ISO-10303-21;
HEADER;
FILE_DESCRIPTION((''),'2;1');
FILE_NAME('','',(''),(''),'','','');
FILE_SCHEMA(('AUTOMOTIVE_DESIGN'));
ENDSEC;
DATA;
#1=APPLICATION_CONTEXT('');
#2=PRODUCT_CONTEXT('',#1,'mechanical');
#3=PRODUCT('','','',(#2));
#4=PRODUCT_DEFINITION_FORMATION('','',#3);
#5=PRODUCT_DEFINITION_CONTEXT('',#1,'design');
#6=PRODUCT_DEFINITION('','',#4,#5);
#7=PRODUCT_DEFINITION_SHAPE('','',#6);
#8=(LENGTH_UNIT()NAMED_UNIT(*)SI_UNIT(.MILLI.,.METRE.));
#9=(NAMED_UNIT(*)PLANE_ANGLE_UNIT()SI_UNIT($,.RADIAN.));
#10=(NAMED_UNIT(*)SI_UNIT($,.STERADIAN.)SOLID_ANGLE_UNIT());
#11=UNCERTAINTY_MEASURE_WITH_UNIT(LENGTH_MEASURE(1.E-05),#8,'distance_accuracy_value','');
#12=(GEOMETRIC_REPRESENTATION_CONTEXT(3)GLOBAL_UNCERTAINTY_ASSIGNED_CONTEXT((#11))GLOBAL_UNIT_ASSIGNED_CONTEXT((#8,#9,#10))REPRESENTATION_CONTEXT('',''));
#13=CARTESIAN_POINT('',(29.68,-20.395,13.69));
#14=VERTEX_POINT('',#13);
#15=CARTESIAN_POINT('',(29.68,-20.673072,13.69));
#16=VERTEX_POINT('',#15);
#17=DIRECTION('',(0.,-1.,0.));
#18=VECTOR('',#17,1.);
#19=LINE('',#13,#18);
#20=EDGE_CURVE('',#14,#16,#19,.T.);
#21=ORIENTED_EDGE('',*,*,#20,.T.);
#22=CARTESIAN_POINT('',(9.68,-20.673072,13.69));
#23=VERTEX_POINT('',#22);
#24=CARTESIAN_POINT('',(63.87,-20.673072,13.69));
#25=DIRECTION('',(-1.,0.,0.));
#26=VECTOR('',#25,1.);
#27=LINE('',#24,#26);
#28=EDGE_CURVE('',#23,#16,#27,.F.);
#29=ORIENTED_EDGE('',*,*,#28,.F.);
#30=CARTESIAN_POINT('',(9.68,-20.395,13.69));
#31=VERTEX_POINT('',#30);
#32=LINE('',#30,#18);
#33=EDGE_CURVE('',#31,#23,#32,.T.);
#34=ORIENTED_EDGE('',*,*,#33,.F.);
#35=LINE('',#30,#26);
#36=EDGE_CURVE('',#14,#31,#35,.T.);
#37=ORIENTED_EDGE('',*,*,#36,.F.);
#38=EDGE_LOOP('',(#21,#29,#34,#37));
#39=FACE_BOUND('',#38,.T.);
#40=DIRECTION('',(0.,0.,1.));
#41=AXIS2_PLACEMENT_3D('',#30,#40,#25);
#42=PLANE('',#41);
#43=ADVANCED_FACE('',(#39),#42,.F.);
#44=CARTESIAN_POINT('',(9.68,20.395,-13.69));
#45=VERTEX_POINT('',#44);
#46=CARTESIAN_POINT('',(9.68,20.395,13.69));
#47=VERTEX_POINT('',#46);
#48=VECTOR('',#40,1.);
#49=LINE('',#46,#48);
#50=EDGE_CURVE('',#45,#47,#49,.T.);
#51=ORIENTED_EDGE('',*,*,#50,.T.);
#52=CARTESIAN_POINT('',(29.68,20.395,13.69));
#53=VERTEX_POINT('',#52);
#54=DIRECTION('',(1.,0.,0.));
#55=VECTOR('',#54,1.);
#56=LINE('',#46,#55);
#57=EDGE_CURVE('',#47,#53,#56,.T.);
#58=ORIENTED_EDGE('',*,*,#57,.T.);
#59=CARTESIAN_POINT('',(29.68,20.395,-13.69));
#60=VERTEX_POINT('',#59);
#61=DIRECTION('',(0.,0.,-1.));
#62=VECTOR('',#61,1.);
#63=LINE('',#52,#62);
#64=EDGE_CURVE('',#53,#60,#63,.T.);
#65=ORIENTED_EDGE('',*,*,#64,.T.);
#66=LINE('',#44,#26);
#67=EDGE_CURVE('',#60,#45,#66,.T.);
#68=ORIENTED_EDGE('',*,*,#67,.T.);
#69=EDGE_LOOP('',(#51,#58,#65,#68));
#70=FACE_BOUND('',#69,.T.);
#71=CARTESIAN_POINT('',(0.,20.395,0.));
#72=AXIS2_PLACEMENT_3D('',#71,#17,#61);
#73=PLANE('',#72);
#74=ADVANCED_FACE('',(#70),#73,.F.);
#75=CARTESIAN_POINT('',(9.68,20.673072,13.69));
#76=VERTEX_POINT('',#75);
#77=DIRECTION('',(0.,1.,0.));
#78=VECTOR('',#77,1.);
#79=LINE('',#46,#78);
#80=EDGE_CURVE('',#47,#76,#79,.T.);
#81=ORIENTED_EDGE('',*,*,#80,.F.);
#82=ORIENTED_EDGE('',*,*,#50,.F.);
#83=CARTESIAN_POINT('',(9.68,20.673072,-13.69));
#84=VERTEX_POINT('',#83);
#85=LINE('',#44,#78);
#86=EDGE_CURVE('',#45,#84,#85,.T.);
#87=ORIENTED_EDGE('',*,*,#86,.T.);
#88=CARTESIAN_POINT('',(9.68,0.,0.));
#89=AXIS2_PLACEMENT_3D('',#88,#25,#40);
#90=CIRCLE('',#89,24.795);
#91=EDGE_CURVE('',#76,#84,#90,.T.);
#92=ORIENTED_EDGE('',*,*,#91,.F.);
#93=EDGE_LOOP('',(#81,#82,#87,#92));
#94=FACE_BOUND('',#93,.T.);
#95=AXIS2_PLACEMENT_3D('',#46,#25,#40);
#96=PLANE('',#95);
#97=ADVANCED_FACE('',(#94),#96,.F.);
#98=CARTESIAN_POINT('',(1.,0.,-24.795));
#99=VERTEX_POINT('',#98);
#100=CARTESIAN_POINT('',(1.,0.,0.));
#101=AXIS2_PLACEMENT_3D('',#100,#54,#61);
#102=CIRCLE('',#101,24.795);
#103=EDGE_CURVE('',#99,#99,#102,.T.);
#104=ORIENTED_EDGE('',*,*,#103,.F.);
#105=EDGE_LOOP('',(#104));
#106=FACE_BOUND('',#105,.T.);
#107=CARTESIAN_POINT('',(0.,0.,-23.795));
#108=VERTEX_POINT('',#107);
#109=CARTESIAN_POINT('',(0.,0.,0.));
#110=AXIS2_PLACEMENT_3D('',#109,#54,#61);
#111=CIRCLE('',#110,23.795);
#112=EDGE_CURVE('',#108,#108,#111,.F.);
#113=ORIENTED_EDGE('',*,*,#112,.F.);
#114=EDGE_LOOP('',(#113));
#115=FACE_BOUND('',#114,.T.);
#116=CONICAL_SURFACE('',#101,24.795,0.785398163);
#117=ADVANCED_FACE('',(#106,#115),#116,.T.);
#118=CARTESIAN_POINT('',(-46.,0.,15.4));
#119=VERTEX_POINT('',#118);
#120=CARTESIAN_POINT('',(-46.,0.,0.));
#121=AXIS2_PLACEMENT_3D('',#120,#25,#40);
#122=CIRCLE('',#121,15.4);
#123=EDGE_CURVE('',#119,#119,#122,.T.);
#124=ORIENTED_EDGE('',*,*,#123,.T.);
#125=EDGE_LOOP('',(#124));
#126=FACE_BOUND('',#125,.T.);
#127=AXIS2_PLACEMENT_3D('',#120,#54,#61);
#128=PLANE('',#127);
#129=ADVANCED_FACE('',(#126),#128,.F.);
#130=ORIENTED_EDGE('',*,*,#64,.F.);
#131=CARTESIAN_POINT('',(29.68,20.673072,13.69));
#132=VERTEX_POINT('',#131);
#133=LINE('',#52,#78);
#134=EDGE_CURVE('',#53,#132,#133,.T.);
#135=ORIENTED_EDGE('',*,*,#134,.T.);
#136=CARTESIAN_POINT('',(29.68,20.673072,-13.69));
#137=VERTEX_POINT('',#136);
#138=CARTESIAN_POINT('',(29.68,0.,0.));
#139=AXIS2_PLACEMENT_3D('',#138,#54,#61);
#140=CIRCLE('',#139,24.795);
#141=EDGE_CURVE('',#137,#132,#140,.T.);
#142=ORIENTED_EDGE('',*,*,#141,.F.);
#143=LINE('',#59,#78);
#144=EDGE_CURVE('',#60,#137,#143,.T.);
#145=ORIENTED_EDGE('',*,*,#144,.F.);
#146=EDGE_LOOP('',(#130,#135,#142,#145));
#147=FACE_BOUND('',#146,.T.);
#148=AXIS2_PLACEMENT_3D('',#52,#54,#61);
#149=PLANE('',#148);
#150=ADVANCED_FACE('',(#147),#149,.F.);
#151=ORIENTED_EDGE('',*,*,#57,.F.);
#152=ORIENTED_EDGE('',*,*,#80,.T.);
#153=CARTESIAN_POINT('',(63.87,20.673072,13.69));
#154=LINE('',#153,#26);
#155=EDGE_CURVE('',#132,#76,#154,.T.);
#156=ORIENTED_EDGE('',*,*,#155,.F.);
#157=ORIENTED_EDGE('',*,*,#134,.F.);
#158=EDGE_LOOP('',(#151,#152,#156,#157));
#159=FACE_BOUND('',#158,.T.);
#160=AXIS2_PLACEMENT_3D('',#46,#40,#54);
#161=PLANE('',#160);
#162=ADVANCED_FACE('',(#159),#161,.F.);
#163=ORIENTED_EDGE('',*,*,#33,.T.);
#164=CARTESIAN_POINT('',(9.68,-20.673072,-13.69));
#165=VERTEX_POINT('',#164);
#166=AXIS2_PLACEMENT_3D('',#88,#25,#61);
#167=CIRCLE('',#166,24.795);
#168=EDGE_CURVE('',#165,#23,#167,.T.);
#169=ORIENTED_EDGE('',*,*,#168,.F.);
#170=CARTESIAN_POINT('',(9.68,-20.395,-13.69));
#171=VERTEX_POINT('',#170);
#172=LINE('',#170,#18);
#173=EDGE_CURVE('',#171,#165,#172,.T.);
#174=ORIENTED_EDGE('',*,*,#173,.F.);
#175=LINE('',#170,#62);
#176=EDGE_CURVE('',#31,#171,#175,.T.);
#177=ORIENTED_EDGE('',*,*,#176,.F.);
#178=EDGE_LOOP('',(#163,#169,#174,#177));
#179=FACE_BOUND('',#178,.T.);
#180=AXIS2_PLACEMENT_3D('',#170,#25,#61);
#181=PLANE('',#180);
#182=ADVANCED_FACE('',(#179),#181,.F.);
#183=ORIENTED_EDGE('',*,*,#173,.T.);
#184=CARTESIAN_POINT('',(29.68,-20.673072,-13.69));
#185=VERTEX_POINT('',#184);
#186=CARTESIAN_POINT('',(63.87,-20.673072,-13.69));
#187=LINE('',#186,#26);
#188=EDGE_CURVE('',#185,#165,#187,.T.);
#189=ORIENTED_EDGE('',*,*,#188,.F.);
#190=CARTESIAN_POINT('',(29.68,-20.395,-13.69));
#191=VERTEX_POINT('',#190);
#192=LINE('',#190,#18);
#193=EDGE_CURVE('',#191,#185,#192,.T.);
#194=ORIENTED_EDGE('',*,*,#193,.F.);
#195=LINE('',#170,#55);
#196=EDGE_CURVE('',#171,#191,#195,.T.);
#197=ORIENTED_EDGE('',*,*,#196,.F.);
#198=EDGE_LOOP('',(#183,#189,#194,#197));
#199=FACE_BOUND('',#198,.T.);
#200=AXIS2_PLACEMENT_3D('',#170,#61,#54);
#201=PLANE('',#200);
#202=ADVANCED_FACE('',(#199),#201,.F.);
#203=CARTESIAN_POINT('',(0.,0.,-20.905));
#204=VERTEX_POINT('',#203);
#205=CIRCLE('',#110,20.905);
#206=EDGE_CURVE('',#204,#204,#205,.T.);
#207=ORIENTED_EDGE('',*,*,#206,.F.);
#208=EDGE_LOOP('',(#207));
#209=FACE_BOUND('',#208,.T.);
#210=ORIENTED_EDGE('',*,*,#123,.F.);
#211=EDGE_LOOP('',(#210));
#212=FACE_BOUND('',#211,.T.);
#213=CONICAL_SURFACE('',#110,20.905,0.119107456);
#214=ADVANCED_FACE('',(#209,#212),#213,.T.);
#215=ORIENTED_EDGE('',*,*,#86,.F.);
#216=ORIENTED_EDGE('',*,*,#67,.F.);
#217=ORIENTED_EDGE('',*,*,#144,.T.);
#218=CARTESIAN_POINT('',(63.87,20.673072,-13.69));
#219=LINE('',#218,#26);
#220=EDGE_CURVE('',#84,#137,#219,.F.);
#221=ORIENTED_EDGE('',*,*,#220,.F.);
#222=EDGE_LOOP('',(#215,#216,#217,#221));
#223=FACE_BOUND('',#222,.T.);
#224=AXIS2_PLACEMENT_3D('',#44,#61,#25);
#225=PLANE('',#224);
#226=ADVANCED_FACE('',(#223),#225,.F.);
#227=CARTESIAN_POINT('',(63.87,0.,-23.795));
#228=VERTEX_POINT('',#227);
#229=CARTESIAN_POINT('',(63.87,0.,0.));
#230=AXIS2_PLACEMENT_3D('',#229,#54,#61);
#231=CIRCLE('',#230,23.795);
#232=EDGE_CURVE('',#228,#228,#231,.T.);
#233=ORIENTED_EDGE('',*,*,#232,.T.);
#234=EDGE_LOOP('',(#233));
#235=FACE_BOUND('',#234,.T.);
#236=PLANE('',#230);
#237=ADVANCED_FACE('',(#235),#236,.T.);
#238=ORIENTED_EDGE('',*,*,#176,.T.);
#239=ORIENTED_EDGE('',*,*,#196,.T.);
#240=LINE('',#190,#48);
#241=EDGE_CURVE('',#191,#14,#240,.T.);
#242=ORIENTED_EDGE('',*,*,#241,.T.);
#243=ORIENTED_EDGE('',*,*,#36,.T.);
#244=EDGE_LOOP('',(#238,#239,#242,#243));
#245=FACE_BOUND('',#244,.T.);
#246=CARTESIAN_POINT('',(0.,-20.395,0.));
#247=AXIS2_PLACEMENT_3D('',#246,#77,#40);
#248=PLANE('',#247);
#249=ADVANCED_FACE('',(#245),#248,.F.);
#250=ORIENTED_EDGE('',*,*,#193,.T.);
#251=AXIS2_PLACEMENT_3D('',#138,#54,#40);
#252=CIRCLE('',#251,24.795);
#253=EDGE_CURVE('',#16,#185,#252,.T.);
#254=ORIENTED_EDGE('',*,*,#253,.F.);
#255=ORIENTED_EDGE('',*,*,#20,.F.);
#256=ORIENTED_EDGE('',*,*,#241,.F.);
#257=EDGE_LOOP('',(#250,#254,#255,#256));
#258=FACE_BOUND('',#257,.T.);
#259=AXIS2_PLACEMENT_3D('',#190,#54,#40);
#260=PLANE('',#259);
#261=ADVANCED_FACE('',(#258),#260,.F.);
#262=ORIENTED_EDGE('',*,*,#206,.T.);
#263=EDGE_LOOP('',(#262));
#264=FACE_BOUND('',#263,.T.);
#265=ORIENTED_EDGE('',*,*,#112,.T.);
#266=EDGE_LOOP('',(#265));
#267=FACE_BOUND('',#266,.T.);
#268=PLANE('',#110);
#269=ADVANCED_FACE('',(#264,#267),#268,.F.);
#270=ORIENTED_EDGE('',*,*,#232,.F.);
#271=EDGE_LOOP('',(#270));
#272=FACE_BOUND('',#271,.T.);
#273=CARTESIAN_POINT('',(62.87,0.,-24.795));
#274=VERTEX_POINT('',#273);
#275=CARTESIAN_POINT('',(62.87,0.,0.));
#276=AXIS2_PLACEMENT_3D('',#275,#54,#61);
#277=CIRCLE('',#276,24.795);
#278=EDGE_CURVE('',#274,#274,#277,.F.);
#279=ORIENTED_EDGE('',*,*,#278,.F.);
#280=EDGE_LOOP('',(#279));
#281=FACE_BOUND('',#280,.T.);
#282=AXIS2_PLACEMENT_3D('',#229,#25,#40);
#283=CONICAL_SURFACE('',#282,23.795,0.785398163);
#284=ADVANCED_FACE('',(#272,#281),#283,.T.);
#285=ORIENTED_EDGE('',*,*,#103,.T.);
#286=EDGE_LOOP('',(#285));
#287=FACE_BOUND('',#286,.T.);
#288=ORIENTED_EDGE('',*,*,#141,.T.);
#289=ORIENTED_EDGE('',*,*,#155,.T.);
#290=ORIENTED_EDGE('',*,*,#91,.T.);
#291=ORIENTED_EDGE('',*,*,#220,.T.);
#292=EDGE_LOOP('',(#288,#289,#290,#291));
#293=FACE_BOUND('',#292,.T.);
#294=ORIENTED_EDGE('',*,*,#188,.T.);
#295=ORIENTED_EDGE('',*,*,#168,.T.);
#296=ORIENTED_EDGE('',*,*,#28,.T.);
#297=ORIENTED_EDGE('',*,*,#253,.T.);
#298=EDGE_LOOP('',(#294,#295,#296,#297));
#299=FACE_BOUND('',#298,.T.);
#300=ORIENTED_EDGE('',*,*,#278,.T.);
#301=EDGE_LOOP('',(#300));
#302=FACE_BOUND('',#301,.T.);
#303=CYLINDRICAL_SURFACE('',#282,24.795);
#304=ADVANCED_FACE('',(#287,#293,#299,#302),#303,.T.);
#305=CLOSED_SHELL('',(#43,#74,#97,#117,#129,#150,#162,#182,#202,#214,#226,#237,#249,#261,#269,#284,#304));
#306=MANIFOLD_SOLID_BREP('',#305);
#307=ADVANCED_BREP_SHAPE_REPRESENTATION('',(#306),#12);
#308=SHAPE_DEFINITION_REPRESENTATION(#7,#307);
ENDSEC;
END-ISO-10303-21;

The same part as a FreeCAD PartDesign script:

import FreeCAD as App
import Part
import Sketcher
Q = App.Units.Quantity


def edges_at(feature, points):
    """Names of the edges that pass closest to the given points."""
    edges = feature.Shape.Edges
    near = lambda p: min(range(len(edges)), key=lambda i: edges[i].distToShape(Part.Vertex(*p))[0])
    return sorted({f"Edge{near(p) + 1}" for p in points})


def add_polygon(sketch, points):
    """Adds a closed chain of lines whose ends are joined by coincident constraints."""
    first, n = sketch.GeometryCount, len(points)
    for a, b in zip(points, points[1:] + points[:1]):
        sketch.addGeometry(Part.LineSegment(App.Vector(*a, 0), App.Vector(*b, 0)), False)
    for i in range(n):
        sketch.addConstraint(Sketcher.Constraint("Coincident", first + i, 2, first + (i + 1) % n, 1))

doc = App.newDocument("Part")
params = doc.addObject("Spreadsheet::Sheet", "Params")
for row, (alias, value) in enumerate([
    ("sketch1_width", "46 mm"),
    ("sketch1_height", "15.4 mm"),
    ("revolution_angle", "360 deg"),
    ("sketch2_diameter", "49.59 mm"),
    ("pad1_length", "63.87 mm"),
    ("sketch3_width", "20 mm"),
    ("sketch3_height", "27.38 mm"),
    ("pocket1_length", "4.4 mm"),
    ("chamfer_size", "1 mm"),
], start=1):
    params.set(f"A{row}", alias)
    params.set(f"B{row}", "=" + value)
    params.setAlias(f"B{row}", alias)

body = doc.addObject("PartDesign::Body", "Body")

# Sketch on XZ plane
sketch1 = doc.addObject("Sketcher::SketchObject", "Sketch")
body.addObject(sketch1)
sketch1.AttachmentSupport = (doc.XZ_Plane, [""])
sketch1.MapMode = "FlatFace"
add_polygon(sketch1, [(-46, -15), (-46, 0), (0, 0), (0, -21)])  # lines 0-3
sketch1.addConstraint(Sketcher.Constraint("Vertical", 0))
sketch1.addConstraint(Sketcher.Constraint("Horizontal", 1))
sketch1.addConstraint(Sketcher.Constraint("Vertical", 2))
sketch1.addConstraint(Sketcher.Constraint("Coincident", 1, 2, -1, 1))
sketch1.addConstraint(Sketcher.Constraint("DistanceX", 1, 1, 1, 2, Q("46 mm")))
sketch1.addConstraint(Sketcher.Constraint("DistanceY", 0, 1, 0, 2, Q("15.4 mm")))
sketch1.addConstraint(Sketcher.Constraint("DistanceY", 2, 2, 2, 1, Q("20.905 mm")))
sketch1.setExpression("Constraints[8]", "Params.sketch1_width")
sketch1.setExpression("Constraints[9]", "Params.sketch1_height")
revolution = doc.addObject("PartDesign::Revolution", "Revolution")
body.addObject(revolution)
revolution.Profile = sketch1
revolution.ReferenceAxis = (sketch1, ["H_Axis"])
revolution.setExpression("Angle", "Params.revolution_angle")

# Sketch on YZ plane
sketch2 = doc.addObject("Sketcher::SketchObject", "Sketch001")
body.addObject(sketch2)
sketch2.AttachmentSupport = (doc.YZ_Plane, [""])
sketch2.MapMode = "FlatFace"
sketch2.addGeometry(Part.Circle(App.Vector(0, 0, 0), App.Vector(0, 0, 1), 25), False)
sketch2.addConstraint(Sketcher.Constraint("Coincident", 0, 3, -1, 1))
sketch2.addConstraint(Sketcher.Constraint("Diameter", 0, Q("49.59 mm")))
sketch2.setExpression("Constraints[1]", "Params.sketch2_diameter")
pad1 = doc.addObject("PartDesign::Pad", "Pad")
body.addObject(pad1)
pad1.Profile = sketch2
pad1.setExpression("Length", "Params.pad1_length")

# Sketch on XZ plane
sketch3 = doc.addObject("Sketcher::SketchObject", "Sketch002")
body.addObject(sketch3)
sketch3.AttachmentSupport = (doc.XZ_Plane, [""])
sketch3.MapMode = "FlatFace"
sketch3.AttachmentOffset = App.Placement(App.Vector(0, 0, -24.795), App.Rotation())
add_polygon(sketch3, [(10, -14), (10, 14), (30, 14), (30, -14)])  # lines 0-3
sketch3.addConstraint(Sketcher.Constraint("Vertical", 0))
sketch3.addConstraint(Sketcher.Constraint("Horizontal", 1))
sketch3.addConstraint(Sketcher.Constraint("Vertical", 2))
sketch3.addConstraint(Sketcher.Constraint("Horizontal", 3))
sketch3.addConstraint(Sketcher.Constraint("DistanceX", 1, 1, 1, 2, Q("20 mm")))
sketch3.addConstraint(Sketcher.Constraint("DistanceY", 0, 1, 0, 2, Q("27.38 mm")))
sketch3.addConstraint(Sketcher.Constraint("DistanceX", -1, 1, 0, 2, Q("9.68 mm")))
sketch3.addConstraint(Sketcher.Constraint("DistanceY", -1, 1, 0, 2, Q("13.69 mm")))
sketch3.setExpression("Constraints[8]", "Params.sketch3_width")
sketch3.setExpression("Constraints[9]", "Params.sketch3_height")
pocket1 = doc.addObject("PartDesign::Pocket", "Pocket")
body.addObject(pocket1)
pocket1.Profile = sketch3
pocket1.setExpression("Length", "Params.pocket1_length")
pocket1.Reversed = True
doc.recompute()

polarpattern = doc.addObject("PartDesign::PolarPattern", "PolarPattern")
body.addObject(polarpattern)
polarpattern.Originals = [pocket1]
polarpattern.Axis = (doc.X_Axis, [""])
polarpattern.Angle = 360
polarpattern.Occurrences = 2
body.Tip = polarpattern
doc.recompute()

chamfer = doc.addObject("PartDesign::Chamfer", "Chamfer")
body.addObject(chamfer)
chamfer.Base = (polarpattern, edges_at(polarpattern, [(0, 0, 24.795), (63.87, 0, 24.795)]))
chamfer.setExpression("Size", "Params.chamfer_size")

doc.recompute()
